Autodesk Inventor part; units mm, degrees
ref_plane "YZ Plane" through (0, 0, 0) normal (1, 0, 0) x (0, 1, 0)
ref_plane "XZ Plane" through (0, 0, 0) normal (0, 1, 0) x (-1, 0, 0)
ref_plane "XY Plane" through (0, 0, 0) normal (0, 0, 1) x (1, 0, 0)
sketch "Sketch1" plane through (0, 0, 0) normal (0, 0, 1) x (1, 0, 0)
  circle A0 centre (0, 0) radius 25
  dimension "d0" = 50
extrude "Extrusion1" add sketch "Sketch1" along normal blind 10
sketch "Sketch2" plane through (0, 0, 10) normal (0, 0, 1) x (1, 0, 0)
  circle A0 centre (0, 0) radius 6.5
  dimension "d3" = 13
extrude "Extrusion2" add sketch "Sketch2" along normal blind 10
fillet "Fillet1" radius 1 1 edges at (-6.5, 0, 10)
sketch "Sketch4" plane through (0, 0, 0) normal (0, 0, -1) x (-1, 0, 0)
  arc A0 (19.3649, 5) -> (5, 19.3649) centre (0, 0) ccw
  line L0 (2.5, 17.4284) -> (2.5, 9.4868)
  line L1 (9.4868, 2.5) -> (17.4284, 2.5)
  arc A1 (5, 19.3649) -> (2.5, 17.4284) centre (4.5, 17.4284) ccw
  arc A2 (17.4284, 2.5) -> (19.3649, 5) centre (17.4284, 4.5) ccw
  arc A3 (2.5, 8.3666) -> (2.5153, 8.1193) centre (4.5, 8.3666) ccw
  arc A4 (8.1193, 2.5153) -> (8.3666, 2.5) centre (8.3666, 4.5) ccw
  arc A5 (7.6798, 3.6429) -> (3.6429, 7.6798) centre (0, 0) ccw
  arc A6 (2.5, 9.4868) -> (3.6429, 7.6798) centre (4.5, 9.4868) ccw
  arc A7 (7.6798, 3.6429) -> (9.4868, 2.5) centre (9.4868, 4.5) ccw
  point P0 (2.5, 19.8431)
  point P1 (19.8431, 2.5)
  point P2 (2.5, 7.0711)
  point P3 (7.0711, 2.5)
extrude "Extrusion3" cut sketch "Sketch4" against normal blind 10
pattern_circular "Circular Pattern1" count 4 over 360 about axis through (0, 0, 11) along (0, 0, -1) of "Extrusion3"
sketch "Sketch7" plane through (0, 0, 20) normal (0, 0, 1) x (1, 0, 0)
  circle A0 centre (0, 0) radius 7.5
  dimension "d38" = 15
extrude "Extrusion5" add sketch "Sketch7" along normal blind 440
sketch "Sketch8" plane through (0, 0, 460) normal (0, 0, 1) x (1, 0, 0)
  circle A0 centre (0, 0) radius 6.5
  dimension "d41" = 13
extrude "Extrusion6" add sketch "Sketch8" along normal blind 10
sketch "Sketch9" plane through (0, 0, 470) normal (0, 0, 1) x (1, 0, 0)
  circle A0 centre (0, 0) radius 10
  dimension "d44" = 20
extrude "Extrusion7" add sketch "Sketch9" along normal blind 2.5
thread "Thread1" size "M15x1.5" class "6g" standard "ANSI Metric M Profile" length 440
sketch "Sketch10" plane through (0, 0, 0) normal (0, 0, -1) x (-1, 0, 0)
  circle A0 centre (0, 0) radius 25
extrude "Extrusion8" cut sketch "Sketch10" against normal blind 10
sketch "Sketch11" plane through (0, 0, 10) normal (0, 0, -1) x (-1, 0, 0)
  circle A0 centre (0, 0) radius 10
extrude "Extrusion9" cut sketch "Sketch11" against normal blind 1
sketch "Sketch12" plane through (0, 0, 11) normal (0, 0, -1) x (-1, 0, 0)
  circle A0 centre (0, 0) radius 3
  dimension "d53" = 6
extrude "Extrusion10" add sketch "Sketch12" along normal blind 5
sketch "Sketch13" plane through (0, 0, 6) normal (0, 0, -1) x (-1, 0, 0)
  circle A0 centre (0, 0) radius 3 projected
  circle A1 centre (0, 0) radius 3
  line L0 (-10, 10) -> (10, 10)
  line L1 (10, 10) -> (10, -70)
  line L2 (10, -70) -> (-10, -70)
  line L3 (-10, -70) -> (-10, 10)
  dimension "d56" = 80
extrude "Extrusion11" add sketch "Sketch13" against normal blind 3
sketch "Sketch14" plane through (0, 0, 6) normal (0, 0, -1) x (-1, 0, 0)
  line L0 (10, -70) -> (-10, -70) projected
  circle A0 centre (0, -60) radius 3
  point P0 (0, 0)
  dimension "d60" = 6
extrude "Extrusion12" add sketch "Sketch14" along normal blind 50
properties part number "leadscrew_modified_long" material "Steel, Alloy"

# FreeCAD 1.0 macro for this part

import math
import FreeCAD as App
import Part
import Sketcher

V = App.Vector
Q = App.Units.Quantity


def edges_at(feature, points):
    """Names of the edges that pass closest to the given points."""
    edges = feature.Shape.Edges
    near = lambda p: min(range(len(edges)), key=lambda i: edges[i].distToShape(Part.Vertex(*p))[0])
    return sorted({f"Edge{near(p) + 1}" for p in points})


def add_polygon(sketch, points):
    """Adds a closed chain of lines whose ends are joined by coincident constraints."""
    first, n = sketch.GeometryCount, len(points)
    for a, b in zip(points, points[1:] + points[:1]):
        sketch.addGeometry(Part.LineSegment(App.Vector(*a, 0), App.Vector(*b, 0)), False)
    for i in range(n):
        sketch.addConstraint(Sketcher.Constraint("Coincident", first + i, 2, first + (i + 1) % n, 1))

doc = App.newDocument("Part")
body = doc.addObject("PartDesign::Body", "Body")

# Sketch on XY plane
sketch1 = body.newObject("Sketcher::SketchObject", "Sketch")
sketch1.AttachmentSupport = (doc.getObject("XY_Plane"), [""])
sketch1.MapMode = "FlatFace"
sketch1.addGeometry(Part.Circle(V(0, 0, 0), V(0, 0, 1), 25), False)
sketch1.addConstraint(Sketcher.Constraint("Coincident", 0, 3, -1, 1))
sketch1.addConstraint(Sketcher.Constraint("Diameter", 0, Q("50 mm")))
pad1 = body.newObject("PartDesign::Pad", "Pad")
pad1.Profile = sketch1
pad1.Length = 10

# Sketch on XY plane
sketch2 = body.newObject("Sketcher::SketchObject", "Sketch001")
sketch2.AttachmentSupport = (doc.getObject("XY_Plane"), [""])
sketch2.MapMode = "FlatFace"
sketch2.AttachmentOffset = App.Placement(V(0, 0, 10), App.Rotation())
sketch2.addGeometry(Part.Circle(V(0, 0, 0), V(0, 0, 1), 6), False)
sketch2.addConstraint(Sketcher.Constraint("Coincident", 0, 3, -1, 1))
sketch2.addConstraint(Sketcher.Constraint("Diameter", 0, Q("13 mm")))
pad2 = body.newObject("PartDesign::Pad", "Pad001")
pad2.Profile = sketch2
pad2.Length = 10
doc.recompute()

fillet = body.newObject("PartDesign::Fillet", "Fillet")
fillet.Base = (pad2, edges_at(pad2, [(-6.5, 0, 10)]))
fillet.Radius = 1

# Sketch on XY plane
sketch3 = body.newObject("Sketcher::SketchObject", "Sketch002")
sketch3.AttachmentSupport = (doc.getObject("XY_Plane"), [""])
sketch3.MapMode = "FlatFace"
sketch3.addGeometry(Part.ArcOfCircle(Part.Circle(V(-17.4, 4.5, 0), V(0, 0, 1), 2), math.radians(166), math.radians(270)), False)
sketch3.addGeometry(Part.ArcOfCircle(Part.Circle(V(0, 0, 0), V(0, 0, 1), 20), math.radians(104), math.radians(166)), False)
sketch3.addGeometry(Part.ArcOfCircle(Part.Circle(V(-4.5, 17.4, 0), V(0, 0, 1), 2), math.radians(0), math.radians(104)), False)
sketch3.addGeometry(Part.LineSegment(V(-2.5, 17.4, 0), V(-2.5, 9.5, 0)), False)
sketch3.addGeometry(Part.ArcOfCircle(Part.Circle(V(-4.5, 9.5, 0), V(0, 0, 1), 2), math.radians(-65), math.radians(0)), False)
sketch3.addGeometry(Part.ArcOfCircle(Part.Circle(V(0, 0, 0), V(0, 0, 1), 8.5), math.radians(115), math.radians(155)), False)
sketch3.addGeometry(Part.ArcOfCircle(Part.Circle(V(-9.5, 4.5, 0), V(0, 0, 1), 2), math.radians(-90), math.radians(-25)), False)
sketch3.addGeometry(Part.LineSegment(V(-9.5, 2.5, 0), V(-17.4, 2.5, 0)), False)
sketch3.addConstraint(Sketcher.Constraint("Tangent", 0, 1, 1, 2))
sketch3.addConstraint(Sketcher.Constraint("Tangent", 1, 1, 2, 2))
sketch3.addConstraint(Sketcher.Constraint("Tangent", 2, 1, 3, 1))
sketch3.addConstraint(Sketcher.Constraint("Tangent", 3, 2, 4, 2))
sketch3.addConstraint(Sketcher.Constraint("Tangent", 4, 1, 5, 1))
sketch3.addConstraint(Sketcher.Constraint("Tangent", 5, 2, 6, 2))
sketch3.addConstraint(Sketcher.Constraint("Tangent", 6, 1, 7, 1))
sketch3.addConstraint(Sketcher.Constraint("Tangent", 7, 2, 0, 2))
sketch3.addConstraint(Sketcher.Constraint("Vertical", 3))
sketch3.addConstraint(Sketcher.Constraint("Horizontal", 7))
sketch3.addConstraint(Sketcher.Constraint("Coincident", 1, 3, -1, 1))
sketch3.addConstraint(Sketcher.Constraint("Coincident", 5, 3, -1, 1))
sketch3.addConstraint(Sketcher.Constraint("Equal", 0, 2))
sketch3.addConstraint(Sketcher.Constraint("Equal", 2, 4))
sketch3.addConstraint(Sketcher.Constraint("Equal", 4, 6))
sketch3.addConstraint(Sketcher.Constraint("Equal", 7, 3))
sketch3.addConstraint(Sketcher.Constraint("Radius", 0, Q("2 mm")))
sketch3.addConstraint(Sketcher.Constraint("Radius", 1, Q("20 mm")))
sketch3.addConstraint(Sketcher.Constraint("Radius", 5, Q("8.5 mm")))
sketch3.addConstraint(Sketcher.Constraint("DistanceY", -1, 1, 0, 1, Q("5 mm")))
pocket1 = body.newObject("PartDesign::Pocket", "Pocket")
pocket1.Profile = sketch3
pocket1.Length = 10
pocket1.Reversed = True
doc.recompute()

polarpattern = body.newObject("PartDesign::PolarPattern", "PolarPattern")
polarpattern.Originals = [pocket1]
polarpattern.Axis = (doc.getObject("Z_Axis"), [""])
polarpattern.Angle = 360
polarpattern.Occurrences = 4
body.Tip = polarpattern

# Sketch on XY plane
sketch4 = body.newObject("Sketcher::SketchObject", "Sketch003")
sketch4.AttachmentSupport = (doc.getObject("XY_Plane"), [""])
sketch4.MapMode = "FlatFace"
sketch4.AttachmentOffset = App.Placement(V(0, 0, 20), App.Rotation())
sketch4.addGeometry(Part.Circle(V(0, 0, 0), V(0, 0, 1), 8), False)
sketch4.addConstraint(Sketcher.Constraint("Coincident", 0, 3, -1, 1))
sketch4.addConstraint(Sketcher.Constraint("Diameter", 0, Q("15 mm")))
pad3 = body.newObject("PartDesign::Pad", "Pad002")
pad3.Profile = sketch4
pad3.Length = 440

# Sketch on XY plane
sketch5 = body.newObject("Sketcher::SketchObject", "Sketch004")
sketch5.AttachmentSupport = (doc.getObject("XY_Plane"), [""])
sketch5.MapMode = "FlatFace"
sketch5.AttachmentOffset = App.Placement(V(0, 0, 460), App.Rotation())
sketch5.addGeometry(Part.Circle(V(0, 0, 0), V(0, 0, 1), 6), False)
sketch5.addConstraint(Sketcher.Constraint("Coincident", 0, 3, -1, 1))
sketch5.addConstraint(Sketcher.Constraint("Diameter", 0, Q("13 mm")))
pad4 = body.newObject("PartDesign::Pad", "Pad003")
pad4.Profile = sketch5
pad4.Length = 10

# Sketch on XY plane
sketch6 = body.newObject("Sketcher::SketchObject", "Sketch005")
sketch6.AttachmentSupport = (doc.getObject("XY_Plane"), [""])
sketch6.MapMode = "FlatFace"
sketch6.AttachmentOffset = App.Placement(V(0, 0, 470), App.Rotation())
sketch6.addGeometry(Part.Circle(V(0, 0, 0), V(0, 0, 1), 10), False)
sketch6.addConstraint(Sketcher.Constraint("Coincident", 0, 3, -1, 1))
sketch6.addConstraint(Sketcher.Constraint("Diameter", 0, Q("20 mm")))
pad5 = body.newObject("PartDesign::Pad", "Pad004")
pad5.Profile = sketch6
pad5.Length = 2.5

# Sketch on XY plane
sketch7 = body.newObject("Sketcher::SketchObject", "Sketch006")
sketch7.AttachmentSupport = (doc.getObject("XY_Plane"), [""])
sketch7.MapMode = "FlatFace"
sketch7.addGeometry(Part.Circle(V(0, 0, 0), V(0, 0, 1), 25), False)
sketch7.addConstraint(Sketcher.Constraint("Coincident", 0, 3, -1, 1))
sketch7.addConstraint(Sketcher.Constraint("Diameter", 0, Q("50 mm")))
pocket2 = body.newObject("PartDesign::Pocket", "Pocket001")
pocket2.Profile = sketch7
pocket2.Length = 10
pocket2.Reversed = True

# Sketch on XY plane
sketch8 = body.newObject("Sketcher::SketchObject", "Sketch007")
sketch8.AttachmentSupport = (doc.getObject("XY_Plane"), [""])
sketch8.MapMode = "FlatFace"
sketch8.AttachmentOffset = App.Placement(V(0, 0, 10), App.Rotation())
sketch8.addGeometry(Part.Circle(V(0, 0, 0), V(0, 0, 1), 10), False)
sketch8.addConstraint(Sketcher.Constraint("Coincident", 0, 3, -1, 1))
sketch8.addConstraint(Sketcher.Constraint("Diameter", 0, Q("20 mm")))
pocket3 = body.newObject("PartDesign::Pocket", "Pocket002")
pocket3.Profile = sketch8
pocket3.Length = 1
pocket3.Reversed = True

# Sketch on XY plane
sketch9 = body.newObject("Sketcher::SketchObject", "Sketch008")
sketch9.AttachmentSupport = (doc.getObject("XY_Plane"), [""])
sketch9.MapMode = "FlatFace"
sketch9.AttachmentOffset = App.Placement(V(0, 0, 11), App.Rotation())
sketch9.addGeometry(Part.Circle(V(0, 0, 0), V(0, 0, 1), 3), False)
sketch9.addConstraint(Sketcher.Constraint("Coincident", 0, 3, -1, 1))
sketch9.addConstraint(Sketcher.Constraint("Diameter", 0, Q("6 mm")))
pad6 = body.newObject("PartDesign::Pad", "Pad005")
pad6.Profile = sketch9
pad6.Length = 5
pad6.Reversed = True

# Sketch on XY plane
sketch10 = body.newObject("Sketcher::SketchObject", "Sketch009")
sketch10.AttachmentSupport = (doc.getObject("XY_Plane"), [""])
sketch10.MapMode = "FlatFace"
sketch10.AttachmentOffset = App.Placement(V(0, 0, 6), App.Rotation())
add_polygon(sketch10, [(-10, 10), (10, 10), (10, -70), (-10, -70)])  # lines 0-3
sketch10.addGeometry(Part.Circle(V(0, 0, 0), V(0, 0, 1), 3), False)  # 4
sketch10.addConstraint(Sketcher.Constraint("Horizontal", 0))
sketch10.addConstraint(Sketcher.Constraint("Vertical", 1))
sketch10.addConstraint(Sketcher.Constraint("Horizontal", 2))
sketch10.addConstraint(Sketcher.Constraint("Vertical", 3))
sketch10.addConstraint(Sketcher.Constraint("Coincident", 4, 3, -1, 1))
sketch10.addConstraint(Sketcher.Constraint("DistanceY", 1, 2, 1, 1, Q("80 mm")))
sketch10.addConstraint(Sketcher.Constraint("Diameter", 4, Q("6 mm")))
sketch10.addConstraint(Sketcher.Constraint("DistanceX", 0, 1, 0, 2, Q("20 mm")))
sketch10.addConstraint(Sketcher.Constraint("DistanceX", -1, 1, 0, 2, Q("10 mm")))
sketch10.addConstraint(Sketcher.Constraint("DistanceY", -1, 1, 0, 2, Q("10 mm")))
pad7 = body.newObject("PartDesign::Pad", "Pad006")
pad7.Profile = sketch10
pad7.Length = 3

# Sketch on XY plane
sketch11 = body.newObject("Sketcher::SketchObject", "Sketch010")
sketch11.AttachmentSupport = (doc.getObject("XY_Plane"), [""])
sketch11.MapMode = "FlatFace"
sketch11.AttachmentOffset = App.Placement(V(0, 0, 6), App.Rotation())
sketch11.addGeometry(Part.Circle(V(0, -60, 0), V(0, 0, 1), 3), False)
sketch11.addConstraint(Sketcher.Constraint("PointOnObject", 0, 3, -2))
sketch11.addConstraint(Sketcher.Constraint("Diameter", 0, Q("6 mm")))
sketch11.addConstraint(Sketcher.Constraint("DistanceY", 0, 3, -1, 1, Q("60 mm")))
pad8 = body.newObject("PartDesign::Pad", "Pad007")
pad8.Profile = sketch11
pad8.Length = 50
pad8.Reversed = True

doc.recompute()
